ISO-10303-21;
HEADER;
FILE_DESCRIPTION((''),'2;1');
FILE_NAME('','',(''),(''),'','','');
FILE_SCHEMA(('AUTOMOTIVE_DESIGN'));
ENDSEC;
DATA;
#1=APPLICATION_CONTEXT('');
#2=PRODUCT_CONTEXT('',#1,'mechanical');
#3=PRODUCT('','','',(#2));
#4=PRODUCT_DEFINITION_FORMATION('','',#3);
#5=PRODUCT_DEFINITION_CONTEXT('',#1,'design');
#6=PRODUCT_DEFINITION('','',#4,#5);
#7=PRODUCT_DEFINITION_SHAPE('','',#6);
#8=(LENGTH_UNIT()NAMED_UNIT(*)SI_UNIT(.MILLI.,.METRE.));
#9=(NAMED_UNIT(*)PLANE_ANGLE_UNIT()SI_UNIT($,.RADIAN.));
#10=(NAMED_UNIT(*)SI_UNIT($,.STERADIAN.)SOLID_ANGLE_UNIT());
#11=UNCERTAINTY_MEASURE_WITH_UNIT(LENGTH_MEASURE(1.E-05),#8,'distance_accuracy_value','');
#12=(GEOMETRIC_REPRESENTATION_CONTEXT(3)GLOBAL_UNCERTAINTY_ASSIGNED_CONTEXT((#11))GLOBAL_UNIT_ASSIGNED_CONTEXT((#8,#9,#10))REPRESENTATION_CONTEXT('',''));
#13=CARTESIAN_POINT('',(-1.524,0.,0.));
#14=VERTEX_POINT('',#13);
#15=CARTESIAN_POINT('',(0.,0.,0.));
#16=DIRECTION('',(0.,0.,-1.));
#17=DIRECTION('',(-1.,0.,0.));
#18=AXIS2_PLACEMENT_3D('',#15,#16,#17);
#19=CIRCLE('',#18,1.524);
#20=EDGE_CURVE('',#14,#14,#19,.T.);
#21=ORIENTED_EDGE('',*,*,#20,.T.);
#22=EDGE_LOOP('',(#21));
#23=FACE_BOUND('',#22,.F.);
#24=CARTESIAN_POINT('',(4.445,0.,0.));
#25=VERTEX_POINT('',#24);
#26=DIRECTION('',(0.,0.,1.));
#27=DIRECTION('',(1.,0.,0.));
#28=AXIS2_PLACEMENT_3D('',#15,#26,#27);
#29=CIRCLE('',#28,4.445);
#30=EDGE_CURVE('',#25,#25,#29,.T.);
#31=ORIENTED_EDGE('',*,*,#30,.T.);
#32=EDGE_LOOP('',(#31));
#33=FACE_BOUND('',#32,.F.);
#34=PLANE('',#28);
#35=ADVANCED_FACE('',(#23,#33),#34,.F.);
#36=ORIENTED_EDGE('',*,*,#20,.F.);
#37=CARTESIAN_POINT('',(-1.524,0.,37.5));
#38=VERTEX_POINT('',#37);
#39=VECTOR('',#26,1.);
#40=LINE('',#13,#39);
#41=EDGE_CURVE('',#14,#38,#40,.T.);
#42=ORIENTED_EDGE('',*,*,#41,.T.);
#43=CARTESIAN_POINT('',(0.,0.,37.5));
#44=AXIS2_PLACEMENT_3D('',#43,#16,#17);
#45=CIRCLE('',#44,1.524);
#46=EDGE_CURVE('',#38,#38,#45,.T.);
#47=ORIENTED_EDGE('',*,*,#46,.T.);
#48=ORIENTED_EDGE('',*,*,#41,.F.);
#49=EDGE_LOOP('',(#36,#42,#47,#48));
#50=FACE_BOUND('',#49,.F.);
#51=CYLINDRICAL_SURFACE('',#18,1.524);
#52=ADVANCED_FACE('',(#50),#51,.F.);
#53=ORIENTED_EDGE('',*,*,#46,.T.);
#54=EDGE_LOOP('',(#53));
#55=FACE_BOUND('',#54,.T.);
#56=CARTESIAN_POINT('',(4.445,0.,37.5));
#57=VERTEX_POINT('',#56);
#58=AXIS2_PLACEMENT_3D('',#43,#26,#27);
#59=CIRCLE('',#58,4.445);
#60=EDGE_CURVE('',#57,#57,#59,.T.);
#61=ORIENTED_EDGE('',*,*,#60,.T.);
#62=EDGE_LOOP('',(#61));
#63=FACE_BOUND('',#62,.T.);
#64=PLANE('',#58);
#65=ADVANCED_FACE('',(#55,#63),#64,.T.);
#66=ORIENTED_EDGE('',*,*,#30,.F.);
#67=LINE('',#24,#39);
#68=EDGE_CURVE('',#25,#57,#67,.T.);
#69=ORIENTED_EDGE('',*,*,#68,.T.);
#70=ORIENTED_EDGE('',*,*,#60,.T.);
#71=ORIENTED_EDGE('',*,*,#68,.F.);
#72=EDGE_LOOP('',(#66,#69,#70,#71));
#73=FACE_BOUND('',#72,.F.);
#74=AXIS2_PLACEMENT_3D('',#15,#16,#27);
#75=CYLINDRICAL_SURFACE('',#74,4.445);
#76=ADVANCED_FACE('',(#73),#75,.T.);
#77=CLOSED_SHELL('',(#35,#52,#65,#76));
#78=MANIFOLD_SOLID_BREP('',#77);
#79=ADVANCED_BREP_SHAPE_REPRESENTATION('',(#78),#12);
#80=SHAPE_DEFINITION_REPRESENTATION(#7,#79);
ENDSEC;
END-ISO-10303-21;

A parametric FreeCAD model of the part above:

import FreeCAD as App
import Part
import Sketcher
Q = App.Units.Quantity

doc = App.newDocument("Part")
body = doc.addObject("PartDesign::Body", "Body")

sketch1 = body.newObject("Sketcher::SketchObject", "Sketch")
sketch1.AttachmentSupport = (doc.getObject("XY_Plane"), [""])
sketch1.MapMode = "FlatFace"
sketch1.addGeometry(Part.Circle(App.Vector(0, 0, 0), App.Vector(0, 0, 1), 4.445), False)
sketch1.addConstraint([
    Sketcher.Constraint("Coincident", 0, 3, -1, 1),
    Sketcher.Constraint("Diameter", 0, Q("8.89 mm")),
])
pad1 = body.newObject("PartDesign::Pad", "Pad")
pad1.Profile = sketch1
pad1.Length = 37.5

sketch2 = body.newObject("Sketcher::SketchObject", "Sketch001")
sketch2.AttachmentSupport = (doc.getObject("XY_Plane"), [""])
sketch2.MapMode = "FlatFace"
sketch2.addGeometry(Part.Circle(App.Vector(0, 0, 0), App.Vector(0, 0, 1), 1.524), False)
sketch2.addConstraint([
    Sketcher.Constraint("Coincident", 0, 3, -1, 1),
    Sketcher.Constraint("Diameter", 0, Q("3.048 mm")),
])
pocket1 = body.newObject("PartDesign::Pocket", "Pocket")
pocket1.Profile = sketch2
pocket1.Type = "ThroughAll"
pocket1.Reversed = True

doc.recompute()
